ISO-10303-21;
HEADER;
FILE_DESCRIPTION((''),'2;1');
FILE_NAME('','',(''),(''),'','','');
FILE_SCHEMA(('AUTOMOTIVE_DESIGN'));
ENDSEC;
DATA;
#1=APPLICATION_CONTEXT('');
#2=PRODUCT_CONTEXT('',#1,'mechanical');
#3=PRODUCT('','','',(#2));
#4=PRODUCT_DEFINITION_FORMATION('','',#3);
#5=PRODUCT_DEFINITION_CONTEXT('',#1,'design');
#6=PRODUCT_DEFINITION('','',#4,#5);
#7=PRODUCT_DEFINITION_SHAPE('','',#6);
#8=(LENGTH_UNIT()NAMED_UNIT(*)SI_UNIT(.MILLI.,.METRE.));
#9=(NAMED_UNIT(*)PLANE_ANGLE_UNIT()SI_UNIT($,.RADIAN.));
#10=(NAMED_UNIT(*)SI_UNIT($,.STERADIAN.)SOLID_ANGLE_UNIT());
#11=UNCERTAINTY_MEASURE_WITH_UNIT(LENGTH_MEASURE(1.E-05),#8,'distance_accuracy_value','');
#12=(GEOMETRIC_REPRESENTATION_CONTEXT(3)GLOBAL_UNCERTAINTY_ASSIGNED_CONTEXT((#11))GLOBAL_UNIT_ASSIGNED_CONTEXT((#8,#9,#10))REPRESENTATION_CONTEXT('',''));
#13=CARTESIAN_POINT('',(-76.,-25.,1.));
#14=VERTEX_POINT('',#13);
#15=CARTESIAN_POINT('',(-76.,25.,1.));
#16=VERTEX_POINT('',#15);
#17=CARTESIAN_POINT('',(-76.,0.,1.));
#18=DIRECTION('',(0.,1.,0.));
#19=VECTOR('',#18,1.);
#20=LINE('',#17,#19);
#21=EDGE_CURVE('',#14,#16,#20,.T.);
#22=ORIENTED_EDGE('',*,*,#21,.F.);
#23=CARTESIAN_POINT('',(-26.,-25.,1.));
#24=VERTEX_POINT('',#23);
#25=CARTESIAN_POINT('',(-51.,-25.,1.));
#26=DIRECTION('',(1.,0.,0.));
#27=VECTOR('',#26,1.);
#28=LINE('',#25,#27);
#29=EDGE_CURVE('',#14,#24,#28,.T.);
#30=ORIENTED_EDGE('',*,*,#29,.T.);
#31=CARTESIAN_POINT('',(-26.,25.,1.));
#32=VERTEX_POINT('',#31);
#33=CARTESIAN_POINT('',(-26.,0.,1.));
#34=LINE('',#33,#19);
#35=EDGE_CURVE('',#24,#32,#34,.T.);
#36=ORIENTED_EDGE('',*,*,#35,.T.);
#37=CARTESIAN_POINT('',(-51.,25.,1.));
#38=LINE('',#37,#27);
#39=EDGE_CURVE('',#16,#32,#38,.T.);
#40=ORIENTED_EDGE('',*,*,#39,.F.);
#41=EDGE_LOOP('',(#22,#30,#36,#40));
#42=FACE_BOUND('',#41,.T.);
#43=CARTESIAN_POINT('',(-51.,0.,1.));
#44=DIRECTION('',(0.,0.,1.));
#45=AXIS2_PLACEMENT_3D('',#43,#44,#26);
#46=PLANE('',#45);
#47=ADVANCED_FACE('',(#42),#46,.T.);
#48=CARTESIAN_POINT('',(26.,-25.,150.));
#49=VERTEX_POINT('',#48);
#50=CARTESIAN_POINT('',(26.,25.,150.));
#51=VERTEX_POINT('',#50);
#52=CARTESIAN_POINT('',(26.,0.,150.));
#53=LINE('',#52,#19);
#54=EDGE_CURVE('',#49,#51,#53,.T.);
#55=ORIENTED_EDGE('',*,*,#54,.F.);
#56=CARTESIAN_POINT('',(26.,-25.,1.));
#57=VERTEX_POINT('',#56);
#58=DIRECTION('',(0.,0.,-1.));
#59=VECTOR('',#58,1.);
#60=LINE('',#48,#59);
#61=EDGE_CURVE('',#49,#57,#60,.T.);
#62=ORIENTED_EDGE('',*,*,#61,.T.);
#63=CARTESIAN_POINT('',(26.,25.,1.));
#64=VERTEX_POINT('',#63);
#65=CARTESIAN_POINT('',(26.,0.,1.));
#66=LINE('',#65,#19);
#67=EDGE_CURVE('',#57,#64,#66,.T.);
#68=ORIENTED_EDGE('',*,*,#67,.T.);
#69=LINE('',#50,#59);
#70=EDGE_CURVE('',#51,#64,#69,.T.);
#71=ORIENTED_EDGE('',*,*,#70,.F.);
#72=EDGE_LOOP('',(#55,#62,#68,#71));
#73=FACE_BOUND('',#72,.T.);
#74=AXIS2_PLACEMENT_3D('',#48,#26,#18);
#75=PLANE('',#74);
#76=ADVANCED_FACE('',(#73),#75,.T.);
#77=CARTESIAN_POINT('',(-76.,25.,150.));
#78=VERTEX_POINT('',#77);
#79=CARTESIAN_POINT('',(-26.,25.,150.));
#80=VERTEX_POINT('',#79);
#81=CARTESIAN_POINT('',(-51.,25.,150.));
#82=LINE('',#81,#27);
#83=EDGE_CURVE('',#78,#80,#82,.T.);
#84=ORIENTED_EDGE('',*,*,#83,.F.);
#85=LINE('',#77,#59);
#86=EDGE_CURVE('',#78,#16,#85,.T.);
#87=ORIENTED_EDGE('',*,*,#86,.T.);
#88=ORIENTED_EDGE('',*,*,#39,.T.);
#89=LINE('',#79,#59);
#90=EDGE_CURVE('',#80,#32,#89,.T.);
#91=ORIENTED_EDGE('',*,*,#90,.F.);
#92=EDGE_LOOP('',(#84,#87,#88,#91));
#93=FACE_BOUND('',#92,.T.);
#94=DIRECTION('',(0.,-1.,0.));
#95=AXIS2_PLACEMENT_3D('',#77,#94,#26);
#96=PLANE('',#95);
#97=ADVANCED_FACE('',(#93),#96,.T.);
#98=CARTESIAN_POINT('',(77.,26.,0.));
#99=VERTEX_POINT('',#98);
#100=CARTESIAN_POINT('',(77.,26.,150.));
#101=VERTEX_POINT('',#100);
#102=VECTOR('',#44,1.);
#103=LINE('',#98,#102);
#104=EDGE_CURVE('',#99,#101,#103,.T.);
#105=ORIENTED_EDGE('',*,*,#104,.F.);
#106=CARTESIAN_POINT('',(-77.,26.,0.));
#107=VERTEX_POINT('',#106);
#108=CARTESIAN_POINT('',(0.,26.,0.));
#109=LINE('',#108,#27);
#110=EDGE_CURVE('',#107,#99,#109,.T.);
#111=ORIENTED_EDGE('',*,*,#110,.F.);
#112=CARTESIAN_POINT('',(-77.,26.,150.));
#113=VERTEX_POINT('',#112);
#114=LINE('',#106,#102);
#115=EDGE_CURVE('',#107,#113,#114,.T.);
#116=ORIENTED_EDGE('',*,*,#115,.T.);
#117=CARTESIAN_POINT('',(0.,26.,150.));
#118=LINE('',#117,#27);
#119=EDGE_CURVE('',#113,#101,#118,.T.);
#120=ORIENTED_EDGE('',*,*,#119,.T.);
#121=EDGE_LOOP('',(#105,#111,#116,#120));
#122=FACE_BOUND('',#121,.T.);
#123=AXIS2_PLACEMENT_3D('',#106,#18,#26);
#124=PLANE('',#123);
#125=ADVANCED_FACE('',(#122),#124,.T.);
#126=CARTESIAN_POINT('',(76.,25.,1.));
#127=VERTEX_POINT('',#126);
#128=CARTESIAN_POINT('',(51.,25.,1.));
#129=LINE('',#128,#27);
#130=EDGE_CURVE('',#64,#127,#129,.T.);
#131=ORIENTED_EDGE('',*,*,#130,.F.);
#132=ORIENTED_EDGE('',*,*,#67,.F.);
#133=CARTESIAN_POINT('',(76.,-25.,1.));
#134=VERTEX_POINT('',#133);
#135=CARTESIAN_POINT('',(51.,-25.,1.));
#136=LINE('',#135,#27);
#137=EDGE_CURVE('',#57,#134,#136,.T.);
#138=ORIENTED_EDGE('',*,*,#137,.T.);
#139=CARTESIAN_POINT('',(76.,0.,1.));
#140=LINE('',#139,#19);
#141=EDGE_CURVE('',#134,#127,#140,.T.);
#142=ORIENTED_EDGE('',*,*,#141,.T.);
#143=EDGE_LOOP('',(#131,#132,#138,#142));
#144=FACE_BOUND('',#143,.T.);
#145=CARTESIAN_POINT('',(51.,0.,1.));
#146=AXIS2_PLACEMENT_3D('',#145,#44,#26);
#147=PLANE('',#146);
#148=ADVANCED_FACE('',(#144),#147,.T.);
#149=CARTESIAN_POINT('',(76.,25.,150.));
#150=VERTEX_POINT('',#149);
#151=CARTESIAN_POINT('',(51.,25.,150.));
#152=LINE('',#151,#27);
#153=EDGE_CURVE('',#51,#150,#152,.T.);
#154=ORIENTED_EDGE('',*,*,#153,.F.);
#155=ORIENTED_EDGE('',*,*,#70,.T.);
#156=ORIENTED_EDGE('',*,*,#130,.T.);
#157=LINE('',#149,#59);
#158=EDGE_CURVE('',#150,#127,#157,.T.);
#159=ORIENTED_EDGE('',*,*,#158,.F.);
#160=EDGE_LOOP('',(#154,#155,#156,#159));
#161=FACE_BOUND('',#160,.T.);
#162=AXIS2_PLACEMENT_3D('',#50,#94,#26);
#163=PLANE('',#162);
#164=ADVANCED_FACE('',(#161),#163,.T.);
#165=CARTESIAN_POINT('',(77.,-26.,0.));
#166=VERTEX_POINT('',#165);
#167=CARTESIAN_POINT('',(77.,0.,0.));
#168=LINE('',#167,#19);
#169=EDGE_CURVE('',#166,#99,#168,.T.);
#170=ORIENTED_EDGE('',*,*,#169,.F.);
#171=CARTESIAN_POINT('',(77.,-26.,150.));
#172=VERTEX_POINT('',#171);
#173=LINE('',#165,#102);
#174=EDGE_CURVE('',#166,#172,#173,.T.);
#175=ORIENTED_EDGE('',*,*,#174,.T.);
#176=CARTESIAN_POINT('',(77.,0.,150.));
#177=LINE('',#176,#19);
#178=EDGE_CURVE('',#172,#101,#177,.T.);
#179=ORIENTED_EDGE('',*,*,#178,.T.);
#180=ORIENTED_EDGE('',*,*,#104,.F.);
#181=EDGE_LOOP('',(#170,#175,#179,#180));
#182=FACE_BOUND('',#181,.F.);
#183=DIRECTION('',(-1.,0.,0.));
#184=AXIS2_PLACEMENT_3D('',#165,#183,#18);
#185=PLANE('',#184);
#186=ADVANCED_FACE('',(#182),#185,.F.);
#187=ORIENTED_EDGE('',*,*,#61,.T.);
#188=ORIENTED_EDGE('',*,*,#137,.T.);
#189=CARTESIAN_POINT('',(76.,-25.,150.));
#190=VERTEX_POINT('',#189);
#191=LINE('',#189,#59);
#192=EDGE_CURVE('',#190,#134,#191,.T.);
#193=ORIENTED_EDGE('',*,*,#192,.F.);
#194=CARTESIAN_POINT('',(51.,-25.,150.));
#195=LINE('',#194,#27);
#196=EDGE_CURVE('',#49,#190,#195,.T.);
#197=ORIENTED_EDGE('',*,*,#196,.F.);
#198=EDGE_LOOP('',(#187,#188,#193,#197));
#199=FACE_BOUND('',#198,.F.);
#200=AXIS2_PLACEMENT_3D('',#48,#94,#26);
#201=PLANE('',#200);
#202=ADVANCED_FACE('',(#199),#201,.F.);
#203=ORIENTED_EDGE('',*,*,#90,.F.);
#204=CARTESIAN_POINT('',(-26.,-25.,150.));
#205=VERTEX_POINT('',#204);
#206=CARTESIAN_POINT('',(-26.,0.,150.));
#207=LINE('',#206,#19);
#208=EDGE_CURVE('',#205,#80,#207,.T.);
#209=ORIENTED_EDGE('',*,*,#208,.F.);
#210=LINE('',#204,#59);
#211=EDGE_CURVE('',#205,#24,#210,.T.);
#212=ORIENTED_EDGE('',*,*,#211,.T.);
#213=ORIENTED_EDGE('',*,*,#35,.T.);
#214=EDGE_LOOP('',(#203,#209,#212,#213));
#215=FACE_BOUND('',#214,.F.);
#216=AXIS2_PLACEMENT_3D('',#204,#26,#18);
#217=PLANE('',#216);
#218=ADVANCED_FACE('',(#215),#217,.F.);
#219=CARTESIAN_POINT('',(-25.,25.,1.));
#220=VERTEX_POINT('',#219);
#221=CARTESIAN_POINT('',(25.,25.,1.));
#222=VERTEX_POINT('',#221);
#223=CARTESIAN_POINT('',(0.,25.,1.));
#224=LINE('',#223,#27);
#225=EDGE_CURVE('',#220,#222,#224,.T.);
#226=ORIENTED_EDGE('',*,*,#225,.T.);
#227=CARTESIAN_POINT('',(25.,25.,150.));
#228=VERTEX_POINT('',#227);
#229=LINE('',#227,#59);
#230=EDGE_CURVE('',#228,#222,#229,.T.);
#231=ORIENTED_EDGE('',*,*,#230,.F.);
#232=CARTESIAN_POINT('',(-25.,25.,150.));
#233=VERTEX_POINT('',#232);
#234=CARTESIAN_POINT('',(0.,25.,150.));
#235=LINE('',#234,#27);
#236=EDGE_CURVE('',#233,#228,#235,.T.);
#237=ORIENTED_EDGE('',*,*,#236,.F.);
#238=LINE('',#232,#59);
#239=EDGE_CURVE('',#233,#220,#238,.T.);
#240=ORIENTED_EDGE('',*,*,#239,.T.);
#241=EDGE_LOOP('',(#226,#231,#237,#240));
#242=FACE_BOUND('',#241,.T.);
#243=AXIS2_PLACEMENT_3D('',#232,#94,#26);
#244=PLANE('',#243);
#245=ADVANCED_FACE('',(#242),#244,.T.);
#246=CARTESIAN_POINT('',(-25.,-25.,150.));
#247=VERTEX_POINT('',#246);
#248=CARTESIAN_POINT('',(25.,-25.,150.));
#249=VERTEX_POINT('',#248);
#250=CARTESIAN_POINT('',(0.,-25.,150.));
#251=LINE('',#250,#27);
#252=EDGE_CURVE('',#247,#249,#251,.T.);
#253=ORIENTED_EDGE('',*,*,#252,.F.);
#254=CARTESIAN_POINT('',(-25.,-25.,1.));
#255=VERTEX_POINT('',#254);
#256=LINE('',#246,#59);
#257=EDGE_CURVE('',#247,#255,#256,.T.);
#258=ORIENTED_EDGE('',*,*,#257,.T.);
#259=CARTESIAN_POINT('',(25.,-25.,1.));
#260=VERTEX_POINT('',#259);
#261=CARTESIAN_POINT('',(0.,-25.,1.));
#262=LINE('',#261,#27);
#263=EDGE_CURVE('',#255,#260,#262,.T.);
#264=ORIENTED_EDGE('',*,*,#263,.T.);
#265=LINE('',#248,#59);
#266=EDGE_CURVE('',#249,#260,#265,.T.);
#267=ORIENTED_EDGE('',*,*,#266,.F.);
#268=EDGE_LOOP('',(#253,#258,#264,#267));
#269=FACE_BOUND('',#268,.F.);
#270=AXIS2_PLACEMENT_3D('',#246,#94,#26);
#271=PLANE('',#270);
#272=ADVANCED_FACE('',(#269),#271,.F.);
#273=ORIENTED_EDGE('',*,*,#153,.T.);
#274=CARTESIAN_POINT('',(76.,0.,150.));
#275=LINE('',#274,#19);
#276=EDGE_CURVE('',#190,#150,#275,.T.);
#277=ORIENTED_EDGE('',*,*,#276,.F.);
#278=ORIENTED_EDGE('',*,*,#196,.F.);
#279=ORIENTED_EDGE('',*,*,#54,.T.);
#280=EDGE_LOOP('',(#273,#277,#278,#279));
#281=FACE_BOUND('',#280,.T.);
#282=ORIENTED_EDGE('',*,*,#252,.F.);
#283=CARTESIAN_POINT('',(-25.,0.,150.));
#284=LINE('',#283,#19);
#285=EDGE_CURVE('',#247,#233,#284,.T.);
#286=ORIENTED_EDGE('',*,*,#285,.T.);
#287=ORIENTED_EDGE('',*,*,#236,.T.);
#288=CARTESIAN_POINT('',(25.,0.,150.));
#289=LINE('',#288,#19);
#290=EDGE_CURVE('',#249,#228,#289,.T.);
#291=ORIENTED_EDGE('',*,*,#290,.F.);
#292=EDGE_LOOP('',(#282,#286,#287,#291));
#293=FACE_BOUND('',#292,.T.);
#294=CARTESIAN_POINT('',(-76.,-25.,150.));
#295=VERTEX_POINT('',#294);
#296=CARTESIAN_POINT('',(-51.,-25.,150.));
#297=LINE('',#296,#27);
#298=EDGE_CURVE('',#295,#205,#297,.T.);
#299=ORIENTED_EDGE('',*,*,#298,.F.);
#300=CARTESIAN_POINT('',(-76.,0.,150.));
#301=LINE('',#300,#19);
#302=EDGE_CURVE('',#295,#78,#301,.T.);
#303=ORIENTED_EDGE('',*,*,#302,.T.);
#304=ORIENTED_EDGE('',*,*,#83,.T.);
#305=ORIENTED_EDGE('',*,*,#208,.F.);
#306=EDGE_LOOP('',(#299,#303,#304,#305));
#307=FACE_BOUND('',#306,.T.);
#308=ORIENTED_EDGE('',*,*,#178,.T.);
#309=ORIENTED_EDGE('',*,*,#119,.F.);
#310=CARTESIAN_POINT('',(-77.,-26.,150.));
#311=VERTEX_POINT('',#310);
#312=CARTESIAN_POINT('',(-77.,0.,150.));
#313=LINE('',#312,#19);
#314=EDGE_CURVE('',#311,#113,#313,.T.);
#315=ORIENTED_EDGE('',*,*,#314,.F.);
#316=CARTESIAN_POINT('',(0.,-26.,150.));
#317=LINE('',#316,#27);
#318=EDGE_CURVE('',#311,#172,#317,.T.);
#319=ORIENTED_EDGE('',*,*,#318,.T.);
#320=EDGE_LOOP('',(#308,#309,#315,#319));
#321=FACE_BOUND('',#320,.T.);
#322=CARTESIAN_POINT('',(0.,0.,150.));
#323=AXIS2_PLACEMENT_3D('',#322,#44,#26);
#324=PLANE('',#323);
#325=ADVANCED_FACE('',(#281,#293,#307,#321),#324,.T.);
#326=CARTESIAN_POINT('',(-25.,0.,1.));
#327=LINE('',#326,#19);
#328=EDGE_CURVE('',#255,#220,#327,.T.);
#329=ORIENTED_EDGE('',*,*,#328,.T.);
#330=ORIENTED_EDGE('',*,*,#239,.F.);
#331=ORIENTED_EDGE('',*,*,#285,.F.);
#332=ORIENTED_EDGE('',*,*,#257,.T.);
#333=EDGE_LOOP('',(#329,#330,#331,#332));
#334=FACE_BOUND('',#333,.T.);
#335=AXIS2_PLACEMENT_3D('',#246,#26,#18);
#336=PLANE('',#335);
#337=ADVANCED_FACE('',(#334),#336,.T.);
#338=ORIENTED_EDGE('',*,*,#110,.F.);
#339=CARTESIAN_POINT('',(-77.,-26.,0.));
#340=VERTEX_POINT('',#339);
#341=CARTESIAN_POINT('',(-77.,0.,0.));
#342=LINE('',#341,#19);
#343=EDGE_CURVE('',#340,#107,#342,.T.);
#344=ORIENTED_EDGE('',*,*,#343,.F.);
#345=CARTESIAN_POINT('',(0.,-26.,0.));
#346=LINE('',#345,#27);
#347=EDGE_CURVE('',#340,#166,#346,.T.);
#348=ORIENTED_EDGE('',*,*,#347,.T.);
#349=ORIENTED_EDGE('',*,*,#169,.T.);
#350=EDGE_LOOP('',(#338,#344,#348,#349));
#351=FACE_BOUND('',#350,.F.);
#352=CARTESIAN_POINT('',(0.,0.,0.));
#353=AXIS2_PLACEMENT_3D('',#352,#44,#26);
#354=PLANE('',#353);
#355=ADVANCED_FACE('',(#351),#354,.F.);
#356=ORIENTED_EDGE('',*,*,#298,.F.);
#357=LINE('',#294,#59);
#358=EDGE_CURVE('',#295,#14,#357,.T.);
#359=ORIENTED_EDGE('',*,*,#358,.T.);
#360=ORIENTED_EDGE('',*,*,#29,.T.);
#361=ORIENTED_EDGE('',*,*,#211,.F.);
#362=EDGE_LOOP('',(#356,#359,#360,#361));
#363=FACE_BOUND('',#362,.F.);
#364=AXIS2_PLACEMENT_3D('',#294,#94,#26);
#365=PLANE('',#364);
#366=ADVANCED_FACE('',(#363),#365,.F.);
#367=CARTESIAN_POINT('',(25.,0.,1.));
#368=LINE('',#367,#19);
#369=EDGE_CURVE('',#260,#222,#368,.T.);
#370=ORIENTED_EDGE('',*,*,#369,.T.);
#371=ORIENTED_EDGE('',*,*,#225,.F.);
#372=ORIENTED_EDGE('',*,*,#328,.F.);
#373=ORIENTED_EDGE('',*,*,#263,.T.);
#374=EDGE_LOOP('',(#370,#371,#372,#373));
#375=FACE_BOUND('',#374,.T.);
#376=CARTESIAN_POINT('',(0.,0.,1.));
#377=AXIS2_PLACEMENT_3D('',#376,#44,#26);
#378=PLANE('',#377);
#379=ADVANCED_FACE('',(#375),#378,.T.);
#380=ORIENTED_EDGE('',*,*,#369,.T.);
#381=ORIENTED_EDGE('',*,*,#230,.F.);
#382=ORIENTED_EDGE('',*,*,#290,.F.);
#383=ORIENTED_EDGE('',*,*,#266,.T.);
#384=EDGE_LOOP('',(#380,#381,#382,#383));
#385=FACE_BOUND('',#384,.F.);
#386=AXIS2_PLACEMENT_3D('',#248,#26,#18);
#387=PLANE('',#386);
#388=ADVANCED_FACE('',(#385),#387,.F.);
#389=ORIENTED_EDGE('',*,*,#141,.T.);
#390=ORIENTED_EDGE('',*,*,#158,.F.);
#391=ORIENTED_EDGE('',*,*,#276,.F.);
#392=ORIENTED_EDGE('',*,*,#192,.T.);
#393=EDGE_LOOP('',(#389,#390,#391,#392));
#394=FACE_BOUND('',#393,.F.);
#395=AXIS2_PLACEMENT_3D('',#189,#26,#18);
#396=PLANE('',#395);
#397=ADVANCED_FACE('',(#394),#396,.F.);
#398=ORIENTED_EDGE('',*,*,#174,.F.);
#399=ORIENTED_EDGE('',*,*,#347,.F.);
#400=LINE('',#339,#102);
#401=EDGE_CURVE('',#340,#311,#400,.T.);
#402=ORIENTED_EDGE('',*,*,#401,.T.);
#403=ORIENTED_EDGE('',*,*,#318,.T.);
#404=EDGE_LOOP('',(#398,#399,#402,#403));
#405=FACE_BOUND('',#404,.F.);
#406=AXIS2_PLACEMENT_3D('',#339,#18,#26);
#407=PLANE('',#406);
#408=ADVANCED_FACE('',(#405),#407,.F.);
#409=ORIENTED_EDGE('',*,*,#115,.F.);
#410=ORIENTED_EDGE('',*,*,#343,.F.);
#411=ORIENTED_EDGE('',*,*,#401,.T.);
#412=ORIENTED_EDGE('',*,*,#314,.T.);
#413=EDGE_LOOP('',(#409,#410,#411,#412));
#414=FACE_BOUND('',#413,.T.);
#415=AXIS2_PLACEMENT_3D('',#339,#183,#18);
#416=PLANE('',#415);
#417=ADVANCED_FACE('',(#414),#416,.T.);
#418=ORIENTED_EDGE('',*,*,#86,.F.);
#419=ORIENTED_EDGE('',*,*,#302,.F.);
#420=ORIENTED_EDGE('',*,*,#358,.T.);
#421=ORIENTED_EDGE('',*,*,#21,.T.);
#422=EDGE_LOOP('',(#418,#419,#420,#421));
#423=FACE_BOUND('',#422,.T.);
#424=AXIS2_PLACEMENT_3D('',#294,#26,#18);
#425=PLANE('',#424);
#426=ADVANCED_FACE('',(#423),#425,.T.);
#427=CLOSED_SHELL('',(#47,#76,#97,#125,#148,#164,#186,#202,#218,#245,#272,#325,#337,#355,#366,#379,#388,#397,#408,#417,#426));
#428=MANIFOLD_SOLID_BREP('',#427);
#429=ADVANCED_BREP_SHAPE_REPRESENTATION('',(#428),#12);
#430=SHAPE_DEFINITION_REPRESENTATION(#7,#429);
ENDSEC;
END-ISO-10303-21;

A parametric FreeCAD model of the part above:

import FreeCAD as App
import Part
import Sketcher
Q = App.Units.Quantity

doc = App.newDocument("Part")
params = doc.addObject("Spreadsheet::Sheet", "Params")
for row, (alias, value) in enumerate([
    ("sketch1_width", "154 mm"),
    ("sketch1_height", "52 mm"),
    ("pad1_length", "150 mm"),
    ("sketch2_width", "50 mm"),
    ("pocket1_length", "149 mm"),
], start=1):
    params.set(f"A{row}", alias)
    params.set(f"B{row}", "=" + value)
    params.setAlias(f"B{row}", alias)

body = doc.addObject("PartDesign::Body", "Body")

sketch1 = body.newObject("Sketcher::SketchObject", "Sketch")
sketch1.AttachmentSupport = (doc.getObject("XY_Plane"), [""])
sketch1.MapMode = "FlatFace"
sketch1.addGeometry(Part.LineSegment(App.Vector(-77, 26, 0), App.Vector(-77, -26, 0)), False)
sketch1.addGeometry(Part.LineSegment(App.Vector(-77, -26, 0), App.Vector(77, -26, 0)), False)
sketch1.addGeometry(Part.LineSegment(App.Vector(77, -26, 0), App.Vector(77, 26, 0)), False)
sketch1.addGeometry(Part.LineSegment(App.Vector(77, 26, 0), App.Vector(-77, 26, 0)), False)
sketch1.addConstraint(Sketcher.Constraint("Coincident", 0, 2, 1, 1))
sketch1.addConstraint(Sketcher.Constraint("Coincident", 1, 2, 2, 1))
sketch1.addConstraint(Sketcher.Constraint("Coincident", 2, 2, 3, 1))
sketch1.addConstraint(Sketcher.Constraint("Coincident", 3, 2, 0, 1))
sketch1.addConstraint(Sketcher.Constraint("Vertical", 0))
sketch1.addConstraint(Sketcher.Constraint("Horizontal", 1))
sketch1.addConstraint(Sketcher.Constraint("Vertical", 2))
sketch1.addConstraint(Sketcher.Constraint("Horizontal", 3))
sketch1.addConstraint(Sketcher.Constraint("Symmetric", 0, 2, 2, 2, -1, 1))
sketch1.addConstraint(Sketcher.Constraint("DistanceX", 1, 1, 1, 2, Q("154 mm")))
sketch1.addConstraint(Sketcher.Constraint("DistanceY", 0, 2, 0, 1, Q("52 mm")))
sketch1.setExpression("Constraints[9]", "Params.sketch1_width")
sketch1.setExpression("Constraints[10]", "Params.sketch1_height")
pad1 = body.newObject("PartDesign::Pad", "Pad")
pad1.Profile = sketch1
pad1.setExpression("Length", "Params.pad1_length")

sketch2 = body.newObject("Sketcher::SketchObject", "Sketch001")
sketch2.AttachmentSupport = (doc.getObject("XY_Plane"), [""])
sketch2.MapMode = "FlatFace"
sketch2.AttachmentOffset = App.Placement(App.Vector(0, 0, 150), App.Rotation())
sketch2.addGeometry(Part.LineSegment(App.Vector(-76, 25, 0), App.Vector(-76, -25, 0)), False)
sketch2.addGeometry(Part.LineSegment(App.Vector(-76, -25, 0), App.Vector(-26, -25, 0)), False)
sketch2.addGeometry(Part.LineSegment(App.Vector(-26, -25, 0), App.Vector(-26, 25, 0)), False)
sketch2.addGeometry(Part.LineSegment(App.Vector(-26, 25, 0), App.Vector(-76, 25, 0)), False)
sketch2.addGeometry(Part.LineSegment(App.Vector(-25, 25, 0), App.Vector(-25, -25, 0)), False)
sketch2.addGeometry(Part.LineSegment(App.Vector(-25, -25, 0), App.Vector(25, -25, 0)), False)
sketch2.addGeometry(Part.LineSegment(App.Vector(25, -25, 0), App.Vector(25, 25, 0)), False)
sketch2.addGeometry(Part.LineSegment(App.Vector(25, 25, 0), App.Vector(-25, 25, 0)), False)
sketch2.addGeometry(Part.LineSegment(App.Vector(26, 25, 0), App.Vector(26, -25, 0)), False)
sketch2.addGeometry(Part.LineSegment(App.Vector(26, -25, 0), App.Vector(76, -25, 0)), False)
sketch2.addGeometry(Part.LineSegment(App.Vector(76, -25, 0), App.Vector(76, 25, 0)), False)
sketch2.addGeometry(Part.LineSegment(App.Vector(76, 25, 0), App.Vector(26, 25, 0)), False)
sketch2.addConstraint(Sketcher.Constraint("Coincident", 0, 2, 1, 1))
sketch2.addConstraint(Sketcher.Constraint("Coincident", 1, 2, 2, 1))
sketch2.addConstraint(Sketcher.Constraint("Coincident", 2, 2, 3, 1))
sketch2.addConstraint(Sketcher.Constraint("Coincident", 3, 2, 0, 1))
sketch2.addConstraint(Sketcher.Constraint("Coincident", 4, 2, 5, 1))
sketch2.addConstraint(Sketcher.Constraint("Coincident", 5, 2, 6, 1))
sketch2.addConstraint(Sketcher.Constraint("Coincident", 6, 2, 7, 1))
sketch2.addConstraint(Sketcher.Constraint("Coincident", 7, 2, 4, 1))
sketch2.addConstraint(Sketcher.Constraint("Coincident", 8, 2, 9, 1))
sketch2.addConstraint(Sketcher.Constraint("Coincident", 9, 2, 10, 1))
sketch2.addConstraint(Sketcher.Constraint("Coincident", 10, 2, 11, 1))
sketch2.addConstraint(Sketcher.Constraint("Coincident", 11, 2, 8, 1))
sketch2.addConstraint(Sketcher.Constraint("Vertical", 0))
sketch2.addConstraint(Sketcher.Constraint("Horizontal", 1))
sketch2.addConstraint(Sketcher.Constraint("Vertical", 2))
sketch2.addConstraint(Sketcher.Constraint("Horizontal", 3))
sketch2.addConstraint(Sketcher.Constraint("Vertical", 4))
sketch2.addConstraint(Sketcher.Constraint("Horizontal", 5))
sketch2.addConstraint(Sketcher.Constraint("Vertical", 6))
sketch2.addConstraint(Sketcher.Constraint("Horizontal", 7))
sketch2.addConstraint(Sketcher.Constraint("Vertical", 8))
sketch2.addConstraint(Sketcher.Constraint("Horizontal", 9))
sketch2.addConstraint(Sketcher.Constraint("Vertical", 10))
sketch2.addConstraint(Sketcher.Constraint("Horizontal", 11))
sketch2.addConstraint(Sketcher.Constraint("Symmetric", 4, 2, 6, 2, -1, 1))
sketch2.addConstraint(Sketcher.Constraint("Symmetric", 2, 2, 8, 2, -1, 1))
sketch2.addConstraint(Sketcher.Constraint("Symmetric", 0, 2, 10, 2, -1, 1))
sketch2.addConstraint(Sketcher.Constraint("Horizontal", 1, 2, 4, 2))
sketch2.addConstraint(Sketcher.Constraint("Horizontal", 3, 2, 6, 2))
sketch2.addConstraint(Sketcher.Constraint("Equal", 3, 5))
sketch2.addConstraint(Sketcher.Constraint("Equal", 11, 0))
sketch2.addConstraint(Sketcher.Constraint("DistanceX", 1, 1, 1, 2, Q("50 mm")))
sketch2.addConstraint(Sketcher.Constraint("DistanceX", 0, 2, -1, 1, Q("76 mm")))
sketch2.setExpression("Constraints[31]", "Params.sketch2_width")
pocket1 = body.newObject("PartDesign::Pocket", "Pocket")
pocket1.Profile = sketch2
pocket1.setExpression("Length", "Params.pocket1_length")

doc.recompute()
